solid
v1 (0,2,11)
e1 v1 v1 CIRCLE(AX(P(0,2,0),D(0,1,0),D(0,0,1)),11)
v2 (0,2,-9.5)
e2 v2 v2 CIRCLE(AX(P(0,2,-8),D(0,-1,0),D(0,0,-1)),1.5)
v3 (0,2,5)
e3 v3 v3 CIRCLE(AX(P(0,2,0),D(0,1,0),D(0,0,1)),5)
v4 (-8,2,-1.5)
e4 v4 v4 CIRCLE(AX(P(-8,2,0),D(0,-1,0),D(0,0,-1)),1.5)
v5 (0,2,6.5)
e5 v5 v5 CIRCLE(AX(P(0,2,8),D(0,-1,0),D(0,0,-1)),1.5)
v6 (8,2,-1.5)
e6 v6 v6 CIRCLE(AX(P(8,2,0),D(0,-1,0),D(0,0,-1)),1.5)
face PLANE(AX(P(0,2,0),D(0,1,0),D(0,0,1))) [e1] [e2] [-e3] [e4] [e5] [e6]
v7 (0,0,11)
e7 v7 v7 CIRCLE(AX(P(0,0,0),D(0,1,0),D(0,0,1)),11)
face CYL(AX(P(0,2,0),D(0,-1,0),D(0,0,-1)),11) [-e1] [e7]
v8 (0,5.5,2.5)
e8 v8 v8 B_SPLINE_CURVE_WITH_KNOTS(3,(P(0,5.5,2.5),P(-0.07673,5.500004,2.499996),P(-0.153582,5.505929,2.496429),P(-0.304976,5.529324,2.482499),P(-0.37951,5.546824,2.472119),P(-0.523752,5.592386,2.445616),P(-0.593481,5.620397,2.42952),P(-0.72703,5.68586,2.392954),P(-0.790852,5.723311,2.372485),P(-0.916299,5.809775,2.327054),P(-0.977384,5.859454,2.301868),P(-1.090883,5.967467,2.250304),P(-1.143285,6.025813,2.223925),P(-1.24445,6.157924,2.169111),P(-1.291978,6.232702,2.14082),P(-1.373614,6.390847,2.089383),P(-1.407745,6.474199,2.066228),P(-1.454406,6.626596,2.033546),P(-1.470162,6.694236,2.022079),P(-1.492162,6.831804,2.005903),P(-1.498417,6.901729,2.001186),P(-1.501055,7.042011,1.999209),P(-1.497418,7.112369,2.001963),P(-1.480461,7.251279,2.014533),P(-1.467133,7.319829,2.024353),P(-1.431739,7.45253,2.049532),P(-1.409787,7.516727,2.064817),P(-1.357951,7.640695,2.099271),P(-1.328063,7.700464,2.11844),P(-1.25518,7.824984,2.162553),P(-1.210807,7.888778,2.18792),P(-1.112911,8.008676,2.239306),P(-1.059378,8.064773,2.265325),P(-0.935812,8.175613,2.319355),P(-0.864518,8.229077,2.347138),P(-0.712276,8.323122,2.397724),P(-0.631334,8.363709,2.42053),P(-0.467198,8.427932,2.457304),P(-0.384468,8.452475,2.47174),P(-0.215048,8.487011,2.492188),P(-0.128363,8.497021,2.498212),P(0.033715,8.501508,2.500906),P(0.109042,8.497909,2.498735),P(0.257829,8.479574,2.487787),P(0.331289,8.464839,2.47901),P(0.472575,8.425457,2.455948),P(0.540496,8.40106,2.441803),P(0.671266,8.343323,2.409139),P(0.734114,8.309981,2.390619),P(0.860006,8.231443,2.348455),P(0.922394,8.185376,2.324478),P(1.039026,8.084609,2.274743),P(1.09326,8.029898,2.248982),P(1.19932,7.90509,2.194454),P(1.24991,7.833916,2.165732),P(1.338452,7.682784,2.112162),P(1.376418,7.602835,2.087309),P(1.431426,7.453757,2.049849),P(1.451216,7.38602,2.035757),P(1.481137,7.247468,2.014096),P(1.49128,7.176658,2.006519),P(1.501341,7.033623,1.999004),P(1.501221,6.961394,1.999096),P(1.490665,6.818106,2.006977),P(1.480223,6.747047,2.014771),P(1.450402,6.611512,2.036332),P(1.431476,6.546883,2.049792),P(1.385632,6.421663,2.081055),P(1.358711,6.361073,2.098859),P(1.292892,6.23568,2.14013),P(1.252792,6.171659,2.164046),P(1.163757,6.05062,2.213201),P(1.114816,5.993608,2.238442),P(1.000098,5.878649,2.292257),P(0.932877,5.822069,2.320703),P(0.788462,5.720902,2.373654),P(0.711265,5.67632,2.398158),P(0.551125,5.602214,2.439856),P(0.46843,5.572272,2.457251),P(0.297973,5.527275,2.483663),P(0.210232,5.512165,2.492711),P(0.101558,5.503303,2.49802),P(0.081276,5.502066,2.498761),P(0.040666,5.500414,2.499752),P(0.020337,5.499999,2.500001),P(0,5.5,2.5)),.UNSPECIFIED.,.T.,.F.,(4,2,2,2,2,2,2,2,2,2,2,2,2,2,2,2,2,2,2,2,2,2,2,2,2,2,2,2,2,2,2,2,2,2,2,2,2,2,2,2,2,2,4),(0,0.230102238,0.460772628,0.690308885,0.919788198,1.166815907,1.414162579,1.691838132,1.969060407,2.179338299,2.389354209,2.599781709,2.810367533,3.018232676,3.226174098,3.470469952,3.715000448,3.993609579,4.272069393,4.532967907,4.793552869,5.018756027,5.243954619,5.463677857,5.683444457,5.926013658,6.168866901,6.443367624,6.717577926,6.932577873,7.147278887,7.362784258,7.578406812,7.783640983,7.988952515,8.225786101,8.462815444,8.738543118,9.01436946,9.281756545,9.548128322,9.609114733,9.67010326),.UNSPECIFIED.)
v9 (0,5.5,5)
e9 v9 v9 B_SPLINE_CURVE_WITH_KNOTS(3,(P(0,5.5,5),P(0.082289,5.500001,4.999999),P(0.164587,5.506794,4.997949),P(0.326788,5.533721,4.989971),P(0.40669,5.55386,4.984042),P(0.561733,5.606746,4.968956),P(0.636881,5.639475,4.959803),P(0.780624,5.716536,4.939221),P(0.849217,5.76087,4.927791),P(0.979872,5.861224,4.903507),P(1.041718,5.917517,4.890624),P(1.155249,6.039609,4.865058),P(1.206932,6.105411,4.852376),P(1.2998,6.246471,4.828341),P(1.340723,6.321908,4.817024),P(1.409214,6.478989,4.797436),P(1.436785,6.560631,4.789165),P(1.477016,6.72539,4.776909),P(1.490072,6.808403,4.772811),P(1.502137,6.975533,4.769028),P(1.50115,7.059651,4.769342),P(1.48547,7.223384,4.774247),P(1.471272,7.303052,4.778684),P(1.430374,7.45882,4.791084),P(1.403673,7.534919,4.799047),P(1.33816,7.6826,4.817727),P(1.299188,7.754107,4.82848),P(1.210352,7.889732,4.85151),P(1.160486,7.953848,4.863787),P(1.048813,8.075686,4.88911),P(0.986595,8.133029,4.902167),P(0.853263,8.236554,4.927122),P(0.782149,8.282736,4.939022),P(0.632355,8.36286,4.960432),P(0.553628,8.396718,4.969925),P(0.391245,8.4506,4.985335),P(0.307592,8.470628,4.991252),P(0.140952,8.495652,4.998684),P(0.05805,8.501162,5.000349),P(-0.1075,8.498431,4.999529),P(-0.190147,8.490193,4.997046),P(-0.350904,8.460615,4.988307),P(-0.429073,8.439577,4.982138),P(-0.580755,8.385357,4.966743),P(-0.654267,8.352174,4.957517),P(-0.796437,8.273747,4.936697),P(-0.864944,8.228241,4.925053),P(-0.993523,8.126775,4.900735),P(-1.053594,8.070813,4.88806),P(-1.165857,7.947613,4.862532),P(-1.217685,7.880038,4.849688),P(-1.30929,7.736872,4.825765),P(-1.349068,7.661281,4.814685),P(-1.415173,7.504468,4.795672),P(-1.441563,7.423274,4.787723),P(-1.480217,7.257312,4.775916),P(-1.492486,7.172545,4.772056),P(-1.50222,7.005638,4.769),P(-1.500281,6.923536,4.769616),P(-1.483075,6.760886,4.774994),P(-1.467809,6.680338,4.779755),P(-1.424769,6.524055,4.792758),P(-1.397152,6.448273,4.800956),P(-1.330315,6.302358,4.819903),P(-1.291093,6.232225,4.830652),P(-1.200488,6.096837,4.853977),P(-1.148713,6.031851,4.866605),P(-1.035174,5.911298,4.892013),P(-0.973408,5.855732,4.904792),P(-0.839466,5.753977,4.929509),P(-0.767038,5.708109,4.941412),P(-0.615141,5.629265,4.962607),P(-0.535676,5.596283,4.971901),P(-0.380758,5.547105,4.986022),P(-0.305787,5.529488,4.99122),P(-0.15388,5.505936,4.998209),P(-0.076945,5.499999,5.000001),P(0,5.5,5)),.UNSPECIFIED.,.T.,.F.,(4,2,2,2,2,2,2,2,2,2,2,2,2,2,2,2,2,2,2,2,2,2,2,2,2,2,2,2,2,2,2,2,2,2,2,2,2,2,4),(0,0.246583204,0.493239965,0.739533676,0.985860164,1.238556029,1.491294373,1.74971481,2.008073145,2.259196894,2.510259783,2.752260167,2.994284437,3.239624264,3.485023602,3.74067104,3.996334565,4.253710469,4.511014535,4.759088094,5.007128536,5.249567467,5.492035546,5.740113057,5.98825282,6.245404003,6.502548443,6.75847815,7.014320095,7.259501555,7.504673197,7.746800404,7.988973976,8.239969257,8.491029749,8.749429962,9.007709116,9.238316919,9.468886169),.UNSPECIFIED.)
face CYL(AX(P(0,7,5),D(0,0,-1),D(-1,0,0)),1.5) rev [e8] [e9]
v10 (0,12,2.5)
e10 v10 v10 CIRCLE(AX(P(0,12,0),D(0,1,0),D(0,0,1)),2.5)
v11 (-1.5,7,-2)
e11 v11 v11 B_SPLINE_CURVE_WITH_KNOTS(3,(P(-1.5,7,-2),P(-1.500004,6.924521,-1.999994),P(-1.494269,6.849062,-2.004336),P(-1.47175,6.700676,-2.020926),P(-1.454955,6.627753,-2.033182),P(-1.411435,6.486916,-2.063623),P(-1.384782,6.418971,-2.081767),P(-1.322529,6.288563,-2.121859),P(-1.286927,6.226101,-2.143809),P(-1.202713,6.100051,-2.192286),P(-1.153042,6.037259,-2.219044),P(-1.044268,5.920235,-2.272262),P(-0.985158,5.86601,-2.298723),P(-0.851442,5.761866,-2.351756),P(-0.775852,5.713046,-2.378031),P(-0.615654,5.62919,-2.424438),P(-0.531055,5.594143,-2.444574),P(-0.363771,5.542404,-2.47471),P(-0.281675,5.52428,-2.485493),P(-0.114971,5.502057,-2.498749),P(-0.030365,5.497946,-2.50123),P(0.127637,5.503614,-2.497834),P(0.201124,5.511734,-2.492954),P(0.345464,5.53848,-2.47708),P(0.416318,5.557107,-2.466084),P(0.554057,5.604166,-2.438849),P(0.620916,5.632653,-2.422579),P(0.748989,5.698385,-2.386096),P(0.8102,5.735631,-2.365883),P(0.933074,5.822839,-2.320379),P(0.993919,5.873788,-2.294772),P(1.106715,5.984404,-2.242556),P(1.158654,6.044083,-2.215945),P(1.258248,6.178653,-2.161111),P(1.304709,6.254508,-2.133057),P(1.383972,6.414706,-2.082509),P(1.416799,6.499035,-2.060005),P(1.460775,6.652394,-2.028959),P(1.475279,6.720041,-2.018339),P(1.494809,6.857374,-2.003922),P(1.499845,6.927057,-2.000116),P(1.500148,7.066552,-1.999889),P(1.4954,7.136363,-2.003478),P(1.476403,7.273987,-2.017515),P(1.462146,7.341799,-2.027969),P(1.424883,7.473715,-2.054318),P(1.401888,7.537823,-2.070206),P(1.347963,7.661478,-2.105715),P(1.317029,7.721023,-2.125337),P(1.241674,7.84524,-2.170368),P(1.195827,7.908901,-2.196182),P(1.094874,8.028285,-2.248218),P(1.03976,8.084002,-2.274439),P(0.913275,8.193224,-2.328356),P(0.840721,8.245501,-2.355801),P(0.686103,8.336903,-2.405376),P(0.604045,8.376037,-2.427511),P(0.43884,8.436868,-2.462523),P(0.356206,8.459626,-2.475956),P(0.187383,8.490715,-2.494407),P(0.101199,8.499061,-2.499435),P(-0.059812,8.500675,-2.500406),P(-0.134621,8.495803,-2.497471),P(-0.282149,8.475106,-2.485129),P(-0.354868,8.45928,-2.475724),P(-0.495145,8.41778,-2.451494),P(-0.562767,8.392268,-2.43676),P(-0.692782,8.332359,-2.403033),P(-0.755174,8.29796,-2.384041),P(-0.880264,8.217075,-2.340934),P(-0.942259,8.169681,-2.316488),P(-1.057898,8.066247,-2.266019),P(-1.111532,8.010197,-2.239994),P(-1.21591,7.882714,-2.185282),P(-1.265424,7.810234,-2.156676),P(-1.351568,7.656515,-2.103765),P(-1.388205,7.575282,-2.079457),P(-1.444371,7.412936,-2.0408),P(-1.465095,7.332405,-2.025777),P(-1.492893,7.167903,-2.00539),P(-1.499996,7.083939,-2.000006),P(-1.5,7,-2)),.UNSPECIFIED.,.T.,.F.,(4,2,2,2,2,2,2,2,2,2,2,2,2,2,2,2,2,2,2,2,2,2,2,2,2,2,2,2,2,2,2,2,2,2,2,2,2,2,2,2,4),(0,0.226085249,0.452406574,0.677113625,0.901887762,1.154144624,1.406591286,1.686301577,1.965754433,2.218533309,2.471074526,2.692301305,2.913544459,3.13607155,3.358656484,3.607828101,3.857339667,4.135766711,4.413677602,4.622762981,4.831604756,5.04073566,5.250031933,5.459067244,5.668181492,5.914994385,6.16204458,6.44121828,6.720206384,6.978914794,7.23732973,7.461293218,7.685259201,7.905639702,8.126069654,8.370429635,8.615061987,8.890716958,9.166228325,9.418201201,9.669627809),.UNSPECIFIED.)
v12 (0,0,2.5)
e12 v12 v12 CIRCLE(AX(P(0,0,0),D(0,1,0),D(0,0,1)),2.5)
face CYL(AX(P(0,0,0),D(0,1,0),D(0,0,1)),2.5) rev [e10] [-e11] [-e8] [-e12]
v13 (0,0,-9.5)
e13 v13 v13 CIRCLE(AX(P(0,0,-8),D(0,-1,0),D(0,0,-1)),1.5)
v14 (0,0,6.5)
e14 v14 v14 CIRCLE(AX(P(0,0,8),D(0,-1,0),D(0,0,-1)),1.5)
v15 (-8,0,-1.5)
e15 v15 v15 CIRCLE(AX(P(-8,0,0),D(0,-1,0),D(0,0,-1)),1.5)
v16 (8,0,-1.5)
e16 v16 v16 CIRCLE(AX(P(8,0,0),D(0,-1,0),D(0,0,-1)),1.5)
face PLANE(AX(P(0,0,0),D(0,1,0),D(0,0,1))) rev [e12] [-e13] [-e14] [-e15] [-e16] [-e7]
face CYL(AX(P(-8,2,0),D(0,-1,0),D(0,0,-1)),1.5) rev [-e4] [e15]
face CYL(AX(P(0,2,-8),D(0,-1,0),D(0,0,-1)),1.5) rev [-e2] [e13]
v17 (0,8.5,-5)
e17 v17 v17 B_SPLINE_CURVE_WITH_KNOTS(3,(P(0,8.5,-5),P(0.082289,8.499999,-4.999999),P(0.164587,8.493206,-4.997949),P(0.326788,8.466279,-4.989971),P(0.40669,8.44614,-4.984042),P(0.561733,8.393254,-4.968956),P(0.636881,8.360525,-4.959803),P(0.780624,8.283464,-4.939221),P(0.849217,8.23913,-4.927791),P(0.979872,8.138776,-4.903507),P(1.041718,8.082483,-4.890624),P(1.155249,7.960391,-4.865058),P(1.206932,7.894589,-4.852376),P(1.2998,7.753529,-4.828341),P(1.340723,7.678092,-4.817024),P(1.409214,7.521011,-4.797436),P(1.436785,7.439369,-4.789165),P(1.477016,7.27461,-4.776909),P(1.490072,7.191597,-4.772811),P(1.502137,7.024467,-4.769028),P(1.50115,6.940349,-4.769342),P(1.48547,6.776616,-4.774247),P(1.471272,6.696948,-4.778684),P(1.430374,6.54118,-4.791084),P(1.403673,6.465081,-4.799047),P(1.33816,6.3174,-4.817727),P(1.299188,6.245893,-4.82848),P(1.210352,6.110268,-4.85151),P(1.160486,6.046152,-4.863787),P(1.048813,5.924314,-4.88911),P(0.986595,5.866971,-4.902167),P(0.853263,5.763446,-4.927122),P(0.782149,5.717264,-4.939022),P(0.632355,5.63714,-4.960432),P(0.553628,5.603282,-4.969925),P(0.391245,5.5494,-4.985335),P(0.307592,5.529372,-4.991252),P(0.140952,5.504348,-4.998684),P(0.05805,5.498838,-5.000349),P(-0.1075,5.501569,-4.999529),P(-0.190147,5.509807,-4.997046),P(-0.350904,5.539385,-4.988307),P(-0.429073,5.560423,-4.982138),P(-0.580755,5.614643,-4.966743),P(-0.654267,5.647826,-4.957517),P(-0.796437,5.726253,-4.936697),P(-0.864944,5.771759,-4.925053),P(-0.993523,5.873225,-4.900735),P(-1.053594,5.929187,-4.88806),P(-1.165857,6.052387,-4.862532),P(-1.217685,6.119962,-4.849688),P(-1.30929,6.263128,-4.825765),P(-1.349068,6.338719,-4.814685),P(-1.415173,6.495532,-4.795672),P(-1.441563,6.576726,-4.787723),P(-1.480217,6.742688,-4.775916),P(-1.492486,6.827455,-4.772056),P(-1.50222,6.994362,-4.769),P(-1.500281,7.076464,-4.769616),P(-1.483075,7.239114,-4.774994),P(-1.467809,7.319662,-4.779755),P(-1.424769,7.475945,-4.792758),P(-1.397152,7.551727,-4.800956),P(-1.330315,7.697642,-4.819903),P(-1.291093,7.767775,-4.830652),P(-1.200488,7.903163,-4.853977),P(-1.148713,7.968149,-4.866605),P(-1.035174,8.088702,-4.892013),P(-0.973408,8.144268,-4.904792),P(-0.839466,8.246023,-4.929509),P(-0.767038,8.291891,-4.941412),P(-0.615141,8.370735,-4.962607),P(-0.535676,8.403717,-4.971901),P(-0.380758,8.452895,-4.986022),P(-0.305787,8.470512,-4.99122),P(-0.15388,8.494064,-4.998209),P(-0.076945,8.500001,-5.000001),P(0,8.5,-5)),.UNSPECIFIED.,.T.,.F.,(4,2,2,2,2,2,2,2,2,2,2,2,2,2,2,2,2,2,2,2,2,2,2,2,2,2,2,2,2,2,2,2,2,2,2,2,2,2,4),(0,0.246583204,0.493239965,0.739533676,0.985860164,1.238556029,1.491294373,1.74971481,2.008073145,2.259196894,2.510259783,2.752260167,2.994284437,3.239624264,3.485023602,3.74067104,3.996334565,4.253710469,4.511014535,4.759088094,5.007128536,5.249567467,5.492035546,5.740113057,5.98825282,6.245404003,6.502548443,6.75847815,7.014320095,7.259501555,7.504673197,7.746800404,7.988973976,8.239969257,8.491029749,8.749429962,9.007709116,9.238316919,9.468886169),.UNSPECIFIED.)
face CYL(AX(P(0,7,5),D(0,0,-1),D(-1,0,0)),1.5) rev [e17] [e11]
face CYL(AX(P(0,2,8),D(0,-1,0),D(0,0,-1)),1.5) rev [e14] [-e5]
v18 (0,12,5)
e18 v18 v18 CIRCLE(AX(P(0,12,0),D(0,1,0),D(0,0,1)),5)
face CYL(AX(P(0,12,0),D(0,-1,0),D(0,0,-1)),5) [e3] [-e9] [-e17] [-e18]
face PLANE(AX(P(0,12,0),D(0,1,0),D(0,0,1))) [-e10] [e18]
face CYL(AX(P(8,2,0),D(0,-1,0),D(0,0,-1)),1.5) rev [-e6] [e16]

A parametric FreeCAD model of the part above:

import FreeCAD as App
import Part
import Sketcher
Q = App.Units.Quantity

doc = App.newDocument("Part")
body = doc.addObject("PartDesign::Body", "Body")

# Sketch on XZ plane
sketch1 = body.newObject("Sketcher::SketchObject", "Sketch")
sketch1.AttachmentSupport = (doc.getObject("XZ_Plane"), [""])
sketch1.MapMode = "FlatFace"
sketch1.addGeometry(Part.Circle(App.Vector(0, 0, 0), App.Vector(0, 0, 1), 11), False)
sketch1.addConstraint([
    Sketcher.Constraint("Coincident", 0, 3, -1, 1),
    Sketcher.Constraint("Diameter", 0, Q("22 mm")),
])
pad1 = body.newObject("PartDesign::Pad", "Pad")
pad1.Profile = sketch1
pad1.Length = 2
pad1.Reversed = True

# Sketch on XZ plane
sketch2 = body.newObject("Sketcher::SketchObject", "Sketch001")
sketch2.AttachmentSupport = (doc.getObject("XZ_Plane"), [""])
sketch2.MapMode = "FlatFace"
sketch2.addGeometry([
    Part.Circle(App.Vector(0, -8, 0), App.Vector(0, 0, 1), 1.5),
    Part.Circle(App.Vector(8, 0, 0), App.Vector(0, 0, 1), 1.5),
    Part.Circle(App.Vector(-8, 0, 0), App.Vector(0, 0, 1), 1.5),
    Part.Circle(App.Vector(0, 8, 0), App.Vector(0, 0, 1), 1.5),
], False)
sketch2.addConstraint([
    Sketcher.Constraint("Equal", 0, 1),
    Sketcher.Constraint("Equal", 1, 2),
    Sketcher.Constraint("Equal", 2, 3),
    Sketcher.Constraint("Symmetric", 1, 3, 2, 3, -1, 1),
    Sketcher.Constraint("Symmetric", 0, 3, 3, 3, -1, 1),
    Sketcher.Constraint("PointOnObject", 0, 3, -2),
    Sketcher.Constraint("PointOnObject", 1, 3, -1),
    Sketcher.Constraint("Diameter", 0, Q("3 mm")),
    Sketcher.Constraint("DistanceY", 0, 3, -1, 1, Q("8 mm")),
    Sketcher.Constraint("DistanceX", -1, 1, 1, 3, Q("8 mm")),
])
pocket1 = body.newObject("PartDesign::Pocket", "Pocket")
pocket1.Profile = sketch2
pocket1.Length = 2

# Sketch on XZ plane
sketch3 = body.newObject("Sketcher::SketchObject", "Sketch002")
sketch3.AttachmentSupport = (doc.getObject("XZ_Plane"), [""])
sketch3.MapMode = "FlatFace"
sketch3.AttachmentOffset = App.Placement(App.Vector(0, 0, -2), App.Rotation())
sketch3.addGeometry(Part.Circle(App.Vector(0, 0, 0), App.Vector(0, 0, 1), 5), False)
sketch3.addConstraint([
    Sketcher.Constraint("Coincident", 0, 3, -1, 1),
    Sketcher.Constraint("Diameter", 0, Q("10 mm")),
])
pad2 = body.newObject("PartDesign::Pad", "Pad001")
pad2.Profile = sketch3
pad2.Length = 10
pad2.Reversed = True

# Sketch on XZ plane
sketch4 = body.newObject("Sketcher::SketchObject", "Sketch003")
sketch4.AttachmentSupport = (doc.getObject("XZ_Plane"), [""])
sketch4.MapMode = "FlatFace"
sketch4.AttachmentOffset = App.Placement(App.Vector(0, 0, -12), App.Rotation())
sketch4.addGeometry(Part.Circle(App.Vector(0, 0, 0), App.Vector(0, 0, 1), 2.5), False)
sketch4.addConstraint([
    Sketcher.Constraint("Coincident", 0, 3, -1, 1),
    Sketcher.Constraint("Diameter", 0, Q("5 mm")),
])
pocket2 = body.newObject("PartDesign::Pocket", "Pocket001")
pocket2.Profile = sketch4
pocket2.Length = 12
pocket2.Reversed = True

# Sketch on XY plane
sketch5 = body.newObject("Sketcher::SketchObject", "Sketch004")
sketch5.AttachmentSupport = (doc.getObject("XY_Plane"), [""])
sketch5.MapMode = "FlatFace"
sketch5.addGeometry(Part.Circle(App.Vector(0, 7, 0), App.Vector(0, 0, 1), 1.5), False)
sketch5.addConstraint([
    Sketcher.Constraint("PointOnObject", 0, 3, -2),
    Sketcher.Constraint("Diameter", 0, Q("3 mm")),
    Sketcher.Constraint("DistanceY", -1, 1, 0, 3, Q("7 mm")),
])
pocket3 = body.newObject("PartDesign::Pocket", "Pocket002")
pocket3.Profile = sketch5
pocket3.Type = "ThroughAll"
pocket3.Midplane = True

doc.recompute()
